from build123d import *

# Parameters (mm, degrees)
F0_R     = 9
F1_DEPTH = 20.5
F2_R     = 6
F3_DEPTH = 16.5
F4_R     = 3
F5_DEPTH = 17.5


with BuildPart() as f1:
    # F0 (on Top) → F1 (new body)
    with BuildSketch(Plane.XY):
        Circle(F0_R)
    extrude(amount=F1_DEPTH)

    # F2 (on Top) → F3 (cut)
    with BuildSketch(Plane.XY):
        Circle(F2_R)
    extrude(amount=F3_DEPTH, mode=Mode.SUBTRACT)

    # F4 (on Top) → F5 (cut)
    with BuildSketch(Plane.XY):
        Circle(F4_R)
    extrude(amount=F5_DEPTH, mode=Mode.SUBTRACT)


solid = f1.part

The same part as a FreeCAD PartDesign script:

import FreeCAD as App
import Part
import Sketcher
Q = App.Units.Quantity

doc = App.newDocument("Part")
body = doc.addObject("PartDesign::Body", "Body")

# Sketch on XY plane
sketch1 = doc.addObject("Sketcher::SketchObject", "Sketch")
body.addObject(sketch1)
sketch1.AttachmentSupport = (doc.XY_Plane, [""])
sketch1.MapMode = "FlatFace"
sketch1.addGeometry(Part.Circle(App.Vector(0, 0, 0), App.Vector(0, 0, 1), 9), False)
sketch1.addConstraint(Sketcher.Constraint("Coincident", 0, 3, -1, 1))
sketch1.addConstraint(Sketcher.Constraint("Diameter", 0, Q("18 mm")))
pad1 = doc.addObject("PartDesign::Pad", "Pad")
body.addObject(pad1)
pad1.Profile = sketch1
pad1.Length = 20.5

# Sketch on XY plane
sketch2 = doc.addObject("Sketcher::SketchObject", "Sketch001")
body.addObject(sketch2)
sketch2.AttachmentSupport = (doc.XY_Plane, [""])
sketch2.MapMode = "FlatFace"
sketch2.addGeometry(Part.Circle(App.Vector(0, 0, 0), App.Vector(0, 0, 1), 6), False)
sketch2.addConstraint(Sketcher.Constraint("Coincident", 0, 3, -1, 1))
sketch2.addConstraint(Sketcher.Constraint("Diameter", 0, Q("12 mm")))
pocket1 = doc.addObject("PartDesign::Pocket", "Pocket")
body.addObject(pocket1)
pocket1.Profile = sketch2
pocket1.Length = 16.5
pocket1.Reversed = True

# Sketch on XY plane
sketch3 = doc.addObject("Sketcher::SketchObject", "Sketch002")
body.addObject(sketch3)
sketch3.AttachmentSupport = (doc.XY_Plane, [""])
sketch3.MapMode = "FlatFace"
sketch3.addGeometry(Part.Circle(App.Vector(0, 0, 0), App.Vector(0, 0, 1), 3), False)
sketch3.addConstraint(Sketcher.Constraint("Coincident", 0, 3, -1, 1))
sketch3.addConstraint(Sketcher.Constraint("Diameter", 0, Q("6 mm")))
pocket2 = doc.addObject("PartDesign::Pocket", "Pocket001")
body.addObject(pocket2)
pocket2.Profile = sketch3
pocket2.Length = 17.5
pocket2.Reversed = True

doc.recompute()
